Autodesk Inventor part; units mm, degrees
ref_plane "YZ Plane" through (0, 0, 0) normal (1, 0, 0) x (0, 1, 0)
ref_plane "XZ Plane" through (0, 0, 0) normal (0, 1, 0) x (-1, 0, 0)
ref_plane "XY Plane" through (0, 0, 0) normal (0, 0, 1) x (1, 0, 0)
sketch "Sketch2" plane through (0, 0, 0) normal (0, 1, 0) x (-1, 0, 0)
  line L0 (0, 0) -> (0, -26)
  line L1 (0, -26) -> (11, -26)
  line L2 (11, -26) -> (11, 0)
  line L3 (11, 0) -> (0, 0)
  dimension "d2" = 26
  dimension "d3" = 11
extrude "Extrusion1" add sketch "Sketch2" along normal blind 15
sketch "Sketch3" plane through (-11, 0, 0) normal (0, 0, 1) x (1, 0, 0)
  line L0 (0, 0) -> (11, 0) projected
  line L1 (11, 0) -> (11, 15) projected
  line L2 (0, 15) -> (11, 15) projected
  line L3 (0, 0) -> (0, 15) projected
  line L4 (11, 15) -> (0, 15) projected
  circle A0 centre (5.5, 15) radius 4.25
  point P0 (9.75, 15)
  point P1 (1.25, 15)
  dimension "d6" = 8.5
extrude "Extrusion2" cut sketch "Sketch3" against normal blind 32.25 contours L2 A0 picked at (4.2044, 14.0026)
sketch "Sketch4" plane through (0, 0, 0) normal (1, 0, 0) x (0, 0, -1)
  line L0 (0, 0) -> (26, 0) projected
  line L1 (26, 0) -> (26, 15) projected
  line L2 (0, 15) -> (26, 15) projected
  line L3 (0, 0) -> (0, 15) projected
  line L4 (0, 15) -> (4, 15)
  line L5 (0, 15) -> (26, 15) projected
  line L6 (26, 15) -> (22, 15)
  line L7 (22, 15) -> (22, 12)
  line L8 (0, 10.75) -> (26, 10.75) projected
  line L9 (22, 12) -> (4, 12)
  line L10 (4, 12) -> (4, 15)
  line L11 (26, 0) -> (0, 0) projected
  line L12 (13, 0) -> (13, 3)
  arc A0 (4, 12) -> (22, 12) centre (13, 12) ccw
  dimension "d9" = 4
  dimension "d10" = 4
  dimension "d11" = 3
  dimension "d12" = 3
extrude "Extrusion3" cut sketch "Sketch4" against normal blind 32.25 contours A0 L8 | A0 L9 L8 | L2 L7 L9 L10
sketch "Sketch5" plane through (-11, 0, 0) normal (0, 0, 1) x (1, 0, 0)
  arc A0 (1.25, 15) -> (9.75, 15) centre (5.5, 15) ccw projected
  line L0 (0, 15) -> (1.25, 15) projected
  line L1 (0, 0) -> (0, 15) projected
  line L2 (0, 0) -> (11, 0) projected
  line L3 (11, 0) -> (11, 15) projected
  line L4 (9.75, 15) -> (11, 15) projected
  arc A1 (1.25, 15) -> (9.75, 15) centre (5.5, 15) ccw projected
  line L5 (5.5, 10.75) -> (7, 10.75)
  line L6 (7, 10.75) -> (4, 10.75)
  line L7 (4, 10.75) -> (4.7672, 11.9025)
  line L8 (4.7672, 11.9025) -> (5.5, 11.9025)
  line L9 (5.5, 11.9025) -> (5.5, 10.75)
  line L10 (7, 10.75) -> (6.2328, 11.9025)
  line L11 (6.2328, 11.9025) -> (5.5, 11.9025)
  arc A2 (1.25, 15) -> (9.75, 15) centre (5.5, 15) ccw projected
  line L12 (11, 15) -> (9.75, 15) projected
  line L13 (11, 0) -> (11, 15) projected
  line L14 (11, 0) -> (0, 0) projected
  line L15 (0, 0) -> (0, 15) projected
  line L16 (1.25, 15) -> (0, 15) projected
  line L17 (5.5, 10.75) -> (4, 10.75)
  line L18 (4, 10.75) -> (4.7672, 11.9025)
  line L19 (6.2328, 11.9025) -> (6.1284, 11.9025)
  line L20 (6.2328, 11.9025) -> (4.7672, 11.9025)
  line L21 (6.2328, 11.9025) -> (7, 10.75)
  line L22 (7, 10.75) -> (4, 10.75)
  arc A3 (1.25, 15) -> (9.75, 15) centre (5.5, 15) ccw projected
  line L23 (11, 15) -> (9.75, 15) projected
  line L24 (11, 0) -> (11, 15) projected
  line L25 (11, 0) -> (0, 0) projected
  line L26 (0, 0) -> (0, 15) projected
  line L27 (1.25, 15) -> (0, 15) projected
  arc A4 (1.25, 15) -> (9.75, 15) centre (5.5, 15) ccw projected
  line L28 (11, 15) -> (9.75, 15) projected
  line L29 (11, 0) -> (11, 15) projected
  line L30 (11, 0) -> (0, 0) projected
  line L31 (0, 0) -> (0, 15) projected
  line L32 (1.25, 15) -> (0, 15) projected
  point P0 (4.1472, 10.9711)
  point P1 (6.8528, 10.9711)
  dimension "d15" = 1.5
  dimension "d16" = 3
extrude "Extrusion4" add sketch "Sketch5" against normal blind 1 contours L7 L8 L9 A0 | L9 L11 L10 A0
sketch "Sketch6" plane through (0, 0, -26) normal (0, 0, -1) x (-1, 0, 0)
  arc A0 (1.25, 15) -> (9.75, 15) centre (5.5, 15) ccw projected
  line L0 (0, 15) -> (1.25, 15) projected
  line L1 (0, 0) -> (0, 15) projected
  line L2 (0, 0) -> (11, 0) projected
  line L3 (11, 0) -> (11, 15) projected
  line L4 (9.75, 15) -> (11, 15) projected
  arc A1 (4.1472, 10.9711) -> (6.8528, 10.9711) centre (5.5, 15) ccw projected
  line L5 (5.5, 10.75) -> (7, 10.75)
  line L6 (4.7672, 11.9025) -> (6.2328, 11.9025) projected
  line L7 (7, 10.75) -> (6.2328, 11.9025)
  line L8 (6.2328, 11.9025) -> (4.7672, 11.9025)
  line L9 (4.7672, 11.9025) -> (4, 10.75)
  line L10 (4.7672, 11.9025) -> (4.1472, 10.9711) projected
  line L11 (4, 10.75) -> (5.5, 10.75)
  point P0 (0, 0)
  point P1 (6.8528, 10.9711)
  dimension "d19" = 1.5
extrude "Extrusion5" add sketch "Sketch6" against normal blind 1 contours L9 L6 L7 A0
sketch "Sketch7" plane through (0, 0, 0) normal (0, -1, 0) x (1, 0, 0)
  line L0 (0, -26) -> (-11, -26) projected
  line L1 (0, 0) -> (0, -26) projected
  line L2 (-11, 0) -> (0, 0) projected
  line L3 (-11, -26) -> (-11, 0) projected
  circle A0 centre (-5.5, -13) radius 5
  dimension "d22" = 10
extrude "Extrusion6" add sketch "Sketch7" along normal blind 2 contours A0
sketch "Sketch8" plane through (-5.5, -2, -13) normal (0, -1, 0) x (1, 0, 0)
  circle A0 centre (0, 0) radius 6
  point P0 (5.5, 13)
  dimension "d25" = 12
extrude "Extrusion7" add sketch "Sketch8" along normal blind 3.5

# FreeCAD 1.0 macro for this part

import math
import FreeCAD as App
import Part
import Sketcher
Q = App.Units.Quantity


def add_polygon(sketch, points):
    """Adds a closed chain of lines whose ends are joined by coincident constraints."""
    first, n = sketch.GeometryCount, len(points)
    for a, b in zip(points, points[1:] + points[:1]):
        sketch.addGeometry(Part.LineSegment(App.Vector(*a, 0), App.Vector(*b, 0)), False)
    for i in range(n):
        sketch.addConstraint(Sketcher.Constraint("Coincident", first + i, 2, first + (i + 1) % n, 1))

doc = App.newDocument("Part")
body = doc.addObject("PartDesign::Body", "Body")

sketch1 = body.newObject("Sketcher::SketchObject", "Sketch")
sketch1.AttachmentSupport = (doc.getObject("XZ_Plane"), [""])
sketch1.MapMode = "FlatFace"
add_polygon(sketch1, [(-11, 0), (0, 0), (0, -26), (-11, -26)])
sketch1.addConstraint(Sketcher.Constraint("Horizontal", 0))
sketch1.addConstraint(Sketcher.Constraint("Vertical", 1))
sketch1.addConstraint(Sketcher.Constraint("Horizontal", 2))
sketch1.addConstraint(Sketcher.Constraint("Vertical", 3))
sketch1.addConstraint(Sketcher.Constraint("Coincident", 0, 2, -1, 1))
sketch1.addConstraint(Sketcher.Constraint("DistanceX", 0, 1, 0, 2, Q("11 mm")))
sketch1.addConstraint(Sketcher.Constraint("DistanceY", 1, 2, 1, 1, Q("26 mm")))
pad1 = body.newObject("PartDesign::Pad", "Pad")
pad1.Profile = sketch1
pad1.Length = 15
pad1.Reversed = True

sketch2 = body.newObject("Sketcher::SketchObject", "Sketch001")
sketch2.AttachmentSupport = (doc.getObject("XY_Plane"), [""])
sketch2.MapMode = "FlatFace"
sketch2.addGeometry(Part.LineSegment(App.Vector(-1.2, 15, 0), App.Vector(-9.8, 15, 0)), False)
sketch2.addGeometry(Part.ArcOfCircle(Part.Circle(App.Vector(-5.5, 15, 0), App.Vector(0, 0, 1), 4.2), math.radians(180), math.radians(360)), False)
sketch2.addConstraint(Sketcher.Constraint("Coincident", 0, 1, 1, 2))
sketch2.addConstraint(Sketcher.Constraint("Coincident", 1, 1, 0, 2))
sketch2.addConstraint(Sketcher.Constraint("Horizontal", 0))
sketch2.addConstraint(Sketcher.Constraint("Horizontal", 1, 3, 0, 1))
sketch2.addConstraint(Sketcher.Constraint("Radius", 1, Q("4.25 mm")))
sketch2.addConstraint(Sketcher.Constraint("DistanceY", -1, 1, 1, 3, Q("15 mm")))
sketch2.addConstraint(Sketcher.Constraint("DistanceX", 1, 3, -1, 1, Q("5.5 mm")))
pocket1 = body.newObject("PartDesign::Pocket", "Pocket")
pocket1.Profile = sketch2
pocket1.Length = 32.25

sketch3 = body.newObject("Sketcher::SketchObject", "Sketch002")
sketch3.AttachmentSupport = (doc.getObject("YZ_Plane"), [""])
sketch3.MapMode = "FlatFace"
sketch3.addGeometry(Part.LineSegment(App.Vector(12, -22, 0), App.Vector(15, -22, 0)), False)
sketch3.addGeometry(Part.LineSegment(App.Vector(15, -22, 0), App.Vector(15, -4, 0)), False)
sketch3.addGeometry(Part.LineSegment(App.Vector(15, -4, 0), App.Vector(12, -4, 0)), False)
sketch3.addGeometry(Part.ArcOfCircle(Part.Circle(App.Vector(12, -13, 0), App.Vector(0, 0, 1), 9), math.radians(90), math.radians(270)), False)
sketch3.addConstraint(Sketcher.Constraint("Coincident", 0, 2, 1, 1))
sketch3.addConstraint(Sketcher.Constraint("Coincident", 1, 2, 2, 1))
sketch3.addConstraint(Sketcher.Constraint("Tangent", 2, 2, 3, 1))
sketch3.addConstraint(Sketcher.Constraint("Tangent", 3, 2, 0, 1))
sketch3.addConstraint(Sketcher.Constraint("Horizontal", 0))
sketch3.addConstraint(Sketcher.Constraint("Vertical", 1))
sketch3.addConstraint(Sketcher.Constraint("Horizontal", 2))
sketch3.addConstraint(Sketcher.Constraint("DistanceX", 0, 1, 0, 2, Q("3 mm")))
sketch3.addConstraint(Sketcher.Constraint("DistanceY", 1, 2, -1, 1, Q("4 mm")))
sketch3.addConstraint(Sketcher.Constraint("Radius", 3, Q("9 mm")))
sketch3.addConstraint(Sketcher.Constraint("DistanceX", -1, 1, 3, 3, Q("12 mm")))
pocket2 = body.newObject("PartDesign::Pocket", "Pocket001")
pocket2.Profile = sketch3
pocket2.Length = 32.25

sketch4 = body.newObject("Sketcher::SketchObject", "Sketch003")
sketch4.AttachmentSupport = (doc.getObject("XY_Plane"), [""])
sketch4.MapMode = "FlatFace"
sketch4.addGeometry(Part.LineSegment(App.Vector(-6.2, 11.9, 0), App.Vector(-6.9, 11, 0)), False)
sketch4.addGeometry(Part.ArcOfCircle(Part.Circle(App.Vector(-5.5, 15, 0), App.Vector(0, 0, 1), 4.2), math.radians(-109), math.radians(-71)), False)
sketch4.addGeometry(Part.LineSegment(App.Vector(-4.1, 11, 0), App.Vector(-4.8, 11.9, 0)), False)
sketch4.addGeometry(Part.LineSegment(App.Vector(-4.8, 11.9, 0), App.Vector(-6.2, 11.9, 0)), False)
sketch4.addConstraint(Sketcher.Constraint("Coincident", 0, 2, 1, 1))
sketch4.addConstraint(Sketcher.Constraint("Coincident", 1, 2, 2, 1))
sketch4.addConstraint(Sketcher.Constraint("Coincident", 2, 2, 3, 1))
sketch4.addConstraint(Sketcher.Constraint("Coincident", 3, 2, 0, 1))
sketch4.addConstraint(Sketcher.Constraint("Horizontal", 3))
sketch4.addConstraint(Sketcher.Constraint("Horizontal", 0, 2, 1, 2))
sketch4.addConstraint(Sketcher.Constraint("Equal", 0, 2))
sketch4.addConstraint(Sketcher.Constraint("Radius", 1, Q("4.25 mm")))
sketch4.addConstraint(Sketcher.Constraint("DistanceY", -1, 1, 1, 3, Q("15 mm")))
sketch4.addConstraint(Sketcher.Constraint("DistanceX", 1, 3, -1, 1, Q("5.5 mm")))
sketch4.addConstraint(Sketcher.Constraint("Angle", 0, Q("-123.651 deg")))
sketch4.addConstraint(Sketcher.Constraint("DistanceX", 2, 2, 1, 2, Q("0.62 mm")))
sketch4.addConstraint(Sketcher.Constraint("DistanceX", 3, 2, 3, 1, Q("1.4656 mm")))
pad2 = body.newObject("PartDesign::Pad", "Pad001")
pad2.Profile = sketch4
pad2.Length = 1
pad2.Reversed = True

sketch5 = body.newObject("Sketcher::SketchObject", "Sketch004")
sketch5.AttachmentSupport = (doc.getObject("XY_Plane"), [""])
sketch5.MapMode = "FlatFace"
sketch5.AttachmentOffset = App.Placement(App.Vector(0, 0, -26), App.Rotation())
sketch5.addGeometry(Part.LineSegment(App.Vector(-4.8, 11.9, 0), App.Vector(-4.1, 11, 0)), False)
sketch5.addGeometry(Part.ArcOfCircle(Part.Circle(App.Vector(-5.5, 15, 0), App.Vector(0, 0, 1), 4.2), math.radians(-109), math.radians(-71)), False)
sketch5.addGeometry(Part.LineSegment(App.Vector(-6.9, 11, 0), App.Vector(-6.2, 11.9, 0)), False)
sketch5.addGeometry(Part.LineSegment(App.Vector(-6.2, 11.9, 0), App.Vector(-4.8, 11.9, 0)), False)
sketch5.addConstraint(Sketcher.Constraint("Coincident", 0, 2, 1, 2))
sketch5.addConstraint(Sketcher.Constraint("Coincident", 1, 1, 2, 1))
sketch5.addConstraint(Sketcher.Constraint("Coincident", 2, 2, 3, 1))
sketch5.addConstraint(Sketcher.Constraint("Coincident", 3, 2, 0, 1))
sketch5.addConstraint(Sketcher.Constraint("Horizontal", 3))
sketch5.addConstraint(Sketcher.Constraint("Horizontal", 0, 2, 1, 1))
sketch5.addConstraint(Sketcher.Constraint("Equal", 0, 2))
sketch5.addConstraint(Sketcher.Constraint("Radius", 1, Q("4.25 mm")))
sketch5.addConstraint(Sketcher.Constraint("DistanceY", -1, 1, 1, 3, Q("15 mm")))
sketch5.addConstraint(Sketcher.Constraint("DistanceX", 1, 3, -1, 1, Q("5.5 mm")))
sketch5.addConstraint(Sketcher.Constraint("Angle", 0, Q("-56.349 deg")))
sketch5.addConstraint(Sketcher.Constraint("DistanceX", 1, 1, 2, 2, Q("0.62 mm")))
sketch5.addConstraint(Sketcher.Constraint("DistanceX", 3, 1, 3, 2, Q("1.4656 mm")))
pad3 = body.newObject("PartDesign::Pad", "Pad002")
pad3.Profile = sketch5
pad3.Length = 1

sketch6 = body.newObject("Sketcher::SketchObject", "Sketch005")
sketch6.AttachmentSupport = (doc.getObject("XZ_Plane"), [""])
sketch6.MapMode = "FlatFace"
sketch6.addGeometry(Part.Circle(App.Vector(-6, -13, 0), App.Vector(0, 0, 1), 5), False)
sketch6.addConstraint(Sketcher.Constraint("Diameter", 0, Q("10 mm")))
sketch6.addConstraint(Sketcher.Constraint("DistanceY", 0, 3, -1, 1, Q("13 mm")))
sketch6.addConstraint(Sketcher.Constraint("DistanceX", 0, 3, -1, 1, Q("5.5 mm")))
pad4 = body.newObject("PartDesign::Pad", "Pad003")
pad4.Profile = sketch6
pad4.Length = 2

sketch7 = body.newObject("Sketcher::SketchObject", "Sketch006")
sketch7.AttachmentSupport = (doc.getObject("XZ_Plane"), [""])
sketch7.MapMode = "FlatFace"
sketch7.AttachmentOffset = App.Placement(App.Vector(0, 0, 2), App.Rotation())
sketch7.addGeometry(Part.Circle(App.Vector(-6, -13, 0), App.Vector(0, 0, 1), 6), False)
sketch7.addConstraint(Sketcher.Constraint("Diameter", 0, Q("12 mm")))
sketch7.addConstraint(Sketcher.Constraint("DistanceY", 0, 3, -1, 1, Q("13 mm")))
sketch7.addConstraint(Sketcher.Constraint("DistanceX", 0, 3, -1, 1, Q("5.5 mm")))
pad5 = body.newObject("PartDesign::Pad", "Pad004")
pad5.Profile = sketch7
pad5.Length = 3.5

doc.recompute()
